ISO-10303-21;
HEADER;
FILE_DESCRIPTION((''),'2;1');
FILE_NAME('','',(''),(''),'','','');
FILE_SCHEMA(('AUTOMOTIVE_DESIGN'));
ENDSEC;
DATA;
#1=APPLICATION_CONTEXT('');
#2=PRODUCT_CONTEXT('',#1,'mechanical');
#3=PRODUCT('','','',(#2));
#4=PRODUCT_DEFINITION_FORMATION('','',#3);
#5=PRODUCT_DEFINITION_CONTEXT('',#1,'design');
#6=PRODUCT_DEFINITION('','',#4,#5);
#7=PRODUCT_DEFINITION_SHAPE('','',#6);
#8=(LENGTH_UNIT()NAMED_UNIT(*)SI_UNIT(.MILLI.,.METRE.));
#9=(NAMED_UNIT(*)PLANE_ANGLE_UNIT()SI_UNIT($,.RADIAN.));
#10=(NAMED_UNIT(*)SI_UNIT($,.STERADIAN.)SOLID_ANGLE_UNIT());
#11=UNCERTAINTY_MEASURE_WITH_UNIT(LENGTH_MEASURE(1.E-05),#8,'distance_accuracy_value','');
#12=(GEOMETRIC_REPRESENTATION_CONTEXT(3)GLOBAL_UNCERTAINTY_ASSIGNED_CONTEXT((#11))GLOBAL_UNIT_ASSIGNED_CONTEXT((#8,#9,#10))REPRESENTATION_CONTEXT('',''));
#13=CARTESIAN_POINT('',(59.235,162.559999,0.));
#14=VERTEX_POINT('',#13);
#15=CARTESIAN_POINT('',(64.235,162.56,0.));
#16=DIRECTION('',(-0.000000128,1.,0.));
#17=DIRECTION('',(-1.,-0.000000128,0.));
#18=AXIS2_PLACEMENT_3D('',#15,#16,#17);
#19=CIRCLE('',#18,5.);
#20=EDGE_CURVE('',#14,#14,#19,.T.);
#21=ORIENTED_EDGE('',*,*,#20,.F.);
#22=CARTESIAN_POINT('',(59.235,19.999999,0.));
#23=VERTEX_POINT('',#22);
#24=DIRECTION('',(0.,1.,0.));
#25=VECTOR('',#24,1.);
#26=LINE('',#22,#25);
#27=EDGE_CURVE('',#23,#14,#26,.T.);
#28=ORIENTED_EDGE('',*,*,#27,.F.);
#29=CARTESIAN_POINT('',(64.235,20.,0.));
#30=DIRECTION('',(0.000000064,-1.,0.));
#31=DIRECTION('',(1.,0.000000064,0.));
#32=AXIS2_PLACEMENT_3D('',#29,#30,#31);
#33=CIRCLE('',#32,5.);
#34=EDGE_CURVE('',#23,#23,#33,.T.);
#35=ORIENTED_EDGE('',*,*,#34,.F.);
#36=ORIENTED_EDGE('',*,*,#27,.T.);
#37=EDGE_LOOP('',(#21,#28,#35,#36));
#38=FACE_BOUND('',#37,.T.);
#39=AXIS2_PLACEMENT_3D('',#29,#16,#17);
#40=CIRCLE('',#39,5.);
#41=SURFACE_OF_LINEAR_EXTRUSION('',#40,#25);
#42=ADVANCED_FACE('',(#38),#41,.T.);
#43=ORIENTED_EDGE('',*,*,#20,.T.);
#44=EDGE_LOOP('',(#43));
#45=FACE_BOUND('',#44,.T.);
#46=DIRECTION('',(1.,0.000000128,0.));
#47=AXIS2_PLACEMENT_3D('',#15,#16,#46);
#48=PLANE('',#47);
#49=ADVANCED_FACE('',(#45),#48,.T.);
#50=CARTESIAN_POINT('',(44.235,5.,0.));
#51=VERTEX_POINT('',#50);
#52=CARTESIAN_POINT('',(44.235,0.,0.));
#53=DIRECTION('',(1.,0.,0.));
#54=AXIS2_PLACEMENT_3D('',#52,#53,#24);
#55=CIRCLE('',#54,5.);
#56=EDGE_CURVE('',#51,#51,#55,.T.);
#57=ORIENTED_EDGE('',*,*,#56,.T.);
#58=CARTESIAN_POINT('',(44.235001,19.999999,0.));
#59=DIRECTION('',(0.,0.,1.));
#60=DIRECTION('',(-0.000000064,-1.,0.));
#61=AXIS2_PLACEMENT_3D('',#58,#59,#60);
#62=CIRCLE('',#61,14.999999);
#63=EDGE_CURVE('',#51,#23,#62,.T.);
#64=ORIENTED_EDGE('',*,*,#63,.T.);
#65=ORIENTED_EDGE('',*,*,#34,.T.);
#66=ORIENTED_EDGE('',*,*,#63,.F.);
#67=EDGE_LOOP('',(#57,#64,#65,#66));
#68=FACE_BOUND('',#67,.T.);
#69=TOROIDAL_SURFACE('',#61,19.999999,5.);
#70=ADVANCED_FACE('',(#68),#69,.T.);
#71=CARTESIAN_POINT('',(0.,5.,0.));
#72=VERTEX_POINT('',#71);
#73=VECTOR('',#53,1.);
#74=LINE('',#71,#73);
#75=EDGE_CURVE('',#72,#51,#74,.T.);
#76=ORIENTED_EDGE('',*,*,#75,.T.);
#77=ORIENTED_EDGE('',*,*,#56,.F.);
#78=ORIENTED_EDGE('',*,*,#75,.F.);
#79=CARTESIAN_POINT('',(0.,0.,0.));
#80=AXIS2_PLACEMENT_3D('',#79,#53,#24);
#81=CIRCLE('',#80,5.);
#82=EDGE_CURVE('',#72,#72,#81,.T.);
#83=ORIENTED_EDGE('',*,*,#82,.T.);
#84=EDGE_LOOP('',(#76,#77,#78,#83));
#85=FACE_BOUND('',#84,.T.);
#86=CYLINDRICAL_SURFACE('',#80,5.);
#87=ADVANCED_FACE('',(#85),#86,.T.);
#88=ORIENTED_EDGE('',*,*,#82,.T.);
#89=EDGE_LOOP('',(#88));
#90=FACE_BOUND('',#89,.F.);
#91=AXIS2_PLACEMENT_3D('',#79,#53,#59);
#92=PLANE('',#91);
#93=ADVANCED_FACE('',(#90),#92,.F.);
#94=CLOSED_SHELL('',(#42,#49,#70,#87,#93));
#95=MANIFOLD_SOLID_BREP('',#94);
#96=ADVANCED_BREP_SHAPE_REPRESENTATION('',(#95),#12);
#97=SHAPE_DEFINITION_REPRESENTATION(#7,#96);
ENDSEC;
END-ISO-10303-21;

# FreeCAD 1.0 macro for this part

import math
import FreeCAD as App
import Part
import Sketcher

doc = App.newDocument("Part")
body = doc.addObject("PartDesign::Body", "Body")

# Sketch on YZ plane
sketch1 = doc.addObject("Sketcher::SketchObject", "Sketch")
body.addObject(sketch1)
sketch1.AttachmentSupport = (doc.YZ_Plane, [""])
sketch1.MapMode = "FlatFace"
sketch1.addGeometry(Part.Circle(App.Vector(0, 0, 0), App.Vector(0, 0, 1), 5), False)
sketch1.addConstraint(Sketcher.Constraint("Coincident", 0, 3, -1, 1))
sketch1.addConstraint(Sketcher.Constraint("Diameter", 0, 10.0))

# Sketch on XY plane
sketch2 = doc.addObject("Sketcher::SketchObject", "Sketch001")
body.addObject(sketch2)
sketch2.AttachmentSupport = (doc.XY_Plane, [""])
sketch2.MapMode = "FlatFace"
sketch2.addGeometry(Part.LineSegment(App.Vector(0, 0, 0), App.Vector(44, 0, 0)), False)
sketch2.addGeometry(Part.ArcOfCircle(Part.Circle(App.Vector(44, 20, 0), App.Vector(0, 0, 1), 20), math.radians(-90), math.radians(0)), False)
sketch2.addGeometry(Part.LineSegment(App.Vector(64, 20, 0), App.Vector(64, 163, 0)), False)
sketch2.addConstraint(Sketcher.Constraint("Tangent", 0, 2, 1, 1))
sketch2.addConstraint(Sketcher.Constraint("Tangent", 1, 2, 2, 1))
sketch2.addConstraint(Sketcher.Constraint("Horizontal", 0))
sketch2.addConstraint(Sketcher.Constraint("Vertical", 2))
sketch2.addConstraint(Sketcher.Constraint("Coincident", 0, 1, -1, 1))
sketch2.addConstraint(Sketcher.Constraint("Radius", 1, 19.999999))
sketch2.addConstraint(Sketcher.Constraint("DistanceY", 2, 1, 2, 2, 142.56))
sketch2.addConstraint(Sketcher.Constraint("DistanceX", 0, 1, 0, 2, 44.235))
doc.recompute()

additivepipe = doc.addObject("PartDesign::AdditivePipe", "AdditivePipe")
body.addObject(additivepipe)
additivepipe.Profile = sketch1
additivepipe.Spine = (sketch2, ["Edge1", "Edge2", "Edge3"])

doc.recompute()
